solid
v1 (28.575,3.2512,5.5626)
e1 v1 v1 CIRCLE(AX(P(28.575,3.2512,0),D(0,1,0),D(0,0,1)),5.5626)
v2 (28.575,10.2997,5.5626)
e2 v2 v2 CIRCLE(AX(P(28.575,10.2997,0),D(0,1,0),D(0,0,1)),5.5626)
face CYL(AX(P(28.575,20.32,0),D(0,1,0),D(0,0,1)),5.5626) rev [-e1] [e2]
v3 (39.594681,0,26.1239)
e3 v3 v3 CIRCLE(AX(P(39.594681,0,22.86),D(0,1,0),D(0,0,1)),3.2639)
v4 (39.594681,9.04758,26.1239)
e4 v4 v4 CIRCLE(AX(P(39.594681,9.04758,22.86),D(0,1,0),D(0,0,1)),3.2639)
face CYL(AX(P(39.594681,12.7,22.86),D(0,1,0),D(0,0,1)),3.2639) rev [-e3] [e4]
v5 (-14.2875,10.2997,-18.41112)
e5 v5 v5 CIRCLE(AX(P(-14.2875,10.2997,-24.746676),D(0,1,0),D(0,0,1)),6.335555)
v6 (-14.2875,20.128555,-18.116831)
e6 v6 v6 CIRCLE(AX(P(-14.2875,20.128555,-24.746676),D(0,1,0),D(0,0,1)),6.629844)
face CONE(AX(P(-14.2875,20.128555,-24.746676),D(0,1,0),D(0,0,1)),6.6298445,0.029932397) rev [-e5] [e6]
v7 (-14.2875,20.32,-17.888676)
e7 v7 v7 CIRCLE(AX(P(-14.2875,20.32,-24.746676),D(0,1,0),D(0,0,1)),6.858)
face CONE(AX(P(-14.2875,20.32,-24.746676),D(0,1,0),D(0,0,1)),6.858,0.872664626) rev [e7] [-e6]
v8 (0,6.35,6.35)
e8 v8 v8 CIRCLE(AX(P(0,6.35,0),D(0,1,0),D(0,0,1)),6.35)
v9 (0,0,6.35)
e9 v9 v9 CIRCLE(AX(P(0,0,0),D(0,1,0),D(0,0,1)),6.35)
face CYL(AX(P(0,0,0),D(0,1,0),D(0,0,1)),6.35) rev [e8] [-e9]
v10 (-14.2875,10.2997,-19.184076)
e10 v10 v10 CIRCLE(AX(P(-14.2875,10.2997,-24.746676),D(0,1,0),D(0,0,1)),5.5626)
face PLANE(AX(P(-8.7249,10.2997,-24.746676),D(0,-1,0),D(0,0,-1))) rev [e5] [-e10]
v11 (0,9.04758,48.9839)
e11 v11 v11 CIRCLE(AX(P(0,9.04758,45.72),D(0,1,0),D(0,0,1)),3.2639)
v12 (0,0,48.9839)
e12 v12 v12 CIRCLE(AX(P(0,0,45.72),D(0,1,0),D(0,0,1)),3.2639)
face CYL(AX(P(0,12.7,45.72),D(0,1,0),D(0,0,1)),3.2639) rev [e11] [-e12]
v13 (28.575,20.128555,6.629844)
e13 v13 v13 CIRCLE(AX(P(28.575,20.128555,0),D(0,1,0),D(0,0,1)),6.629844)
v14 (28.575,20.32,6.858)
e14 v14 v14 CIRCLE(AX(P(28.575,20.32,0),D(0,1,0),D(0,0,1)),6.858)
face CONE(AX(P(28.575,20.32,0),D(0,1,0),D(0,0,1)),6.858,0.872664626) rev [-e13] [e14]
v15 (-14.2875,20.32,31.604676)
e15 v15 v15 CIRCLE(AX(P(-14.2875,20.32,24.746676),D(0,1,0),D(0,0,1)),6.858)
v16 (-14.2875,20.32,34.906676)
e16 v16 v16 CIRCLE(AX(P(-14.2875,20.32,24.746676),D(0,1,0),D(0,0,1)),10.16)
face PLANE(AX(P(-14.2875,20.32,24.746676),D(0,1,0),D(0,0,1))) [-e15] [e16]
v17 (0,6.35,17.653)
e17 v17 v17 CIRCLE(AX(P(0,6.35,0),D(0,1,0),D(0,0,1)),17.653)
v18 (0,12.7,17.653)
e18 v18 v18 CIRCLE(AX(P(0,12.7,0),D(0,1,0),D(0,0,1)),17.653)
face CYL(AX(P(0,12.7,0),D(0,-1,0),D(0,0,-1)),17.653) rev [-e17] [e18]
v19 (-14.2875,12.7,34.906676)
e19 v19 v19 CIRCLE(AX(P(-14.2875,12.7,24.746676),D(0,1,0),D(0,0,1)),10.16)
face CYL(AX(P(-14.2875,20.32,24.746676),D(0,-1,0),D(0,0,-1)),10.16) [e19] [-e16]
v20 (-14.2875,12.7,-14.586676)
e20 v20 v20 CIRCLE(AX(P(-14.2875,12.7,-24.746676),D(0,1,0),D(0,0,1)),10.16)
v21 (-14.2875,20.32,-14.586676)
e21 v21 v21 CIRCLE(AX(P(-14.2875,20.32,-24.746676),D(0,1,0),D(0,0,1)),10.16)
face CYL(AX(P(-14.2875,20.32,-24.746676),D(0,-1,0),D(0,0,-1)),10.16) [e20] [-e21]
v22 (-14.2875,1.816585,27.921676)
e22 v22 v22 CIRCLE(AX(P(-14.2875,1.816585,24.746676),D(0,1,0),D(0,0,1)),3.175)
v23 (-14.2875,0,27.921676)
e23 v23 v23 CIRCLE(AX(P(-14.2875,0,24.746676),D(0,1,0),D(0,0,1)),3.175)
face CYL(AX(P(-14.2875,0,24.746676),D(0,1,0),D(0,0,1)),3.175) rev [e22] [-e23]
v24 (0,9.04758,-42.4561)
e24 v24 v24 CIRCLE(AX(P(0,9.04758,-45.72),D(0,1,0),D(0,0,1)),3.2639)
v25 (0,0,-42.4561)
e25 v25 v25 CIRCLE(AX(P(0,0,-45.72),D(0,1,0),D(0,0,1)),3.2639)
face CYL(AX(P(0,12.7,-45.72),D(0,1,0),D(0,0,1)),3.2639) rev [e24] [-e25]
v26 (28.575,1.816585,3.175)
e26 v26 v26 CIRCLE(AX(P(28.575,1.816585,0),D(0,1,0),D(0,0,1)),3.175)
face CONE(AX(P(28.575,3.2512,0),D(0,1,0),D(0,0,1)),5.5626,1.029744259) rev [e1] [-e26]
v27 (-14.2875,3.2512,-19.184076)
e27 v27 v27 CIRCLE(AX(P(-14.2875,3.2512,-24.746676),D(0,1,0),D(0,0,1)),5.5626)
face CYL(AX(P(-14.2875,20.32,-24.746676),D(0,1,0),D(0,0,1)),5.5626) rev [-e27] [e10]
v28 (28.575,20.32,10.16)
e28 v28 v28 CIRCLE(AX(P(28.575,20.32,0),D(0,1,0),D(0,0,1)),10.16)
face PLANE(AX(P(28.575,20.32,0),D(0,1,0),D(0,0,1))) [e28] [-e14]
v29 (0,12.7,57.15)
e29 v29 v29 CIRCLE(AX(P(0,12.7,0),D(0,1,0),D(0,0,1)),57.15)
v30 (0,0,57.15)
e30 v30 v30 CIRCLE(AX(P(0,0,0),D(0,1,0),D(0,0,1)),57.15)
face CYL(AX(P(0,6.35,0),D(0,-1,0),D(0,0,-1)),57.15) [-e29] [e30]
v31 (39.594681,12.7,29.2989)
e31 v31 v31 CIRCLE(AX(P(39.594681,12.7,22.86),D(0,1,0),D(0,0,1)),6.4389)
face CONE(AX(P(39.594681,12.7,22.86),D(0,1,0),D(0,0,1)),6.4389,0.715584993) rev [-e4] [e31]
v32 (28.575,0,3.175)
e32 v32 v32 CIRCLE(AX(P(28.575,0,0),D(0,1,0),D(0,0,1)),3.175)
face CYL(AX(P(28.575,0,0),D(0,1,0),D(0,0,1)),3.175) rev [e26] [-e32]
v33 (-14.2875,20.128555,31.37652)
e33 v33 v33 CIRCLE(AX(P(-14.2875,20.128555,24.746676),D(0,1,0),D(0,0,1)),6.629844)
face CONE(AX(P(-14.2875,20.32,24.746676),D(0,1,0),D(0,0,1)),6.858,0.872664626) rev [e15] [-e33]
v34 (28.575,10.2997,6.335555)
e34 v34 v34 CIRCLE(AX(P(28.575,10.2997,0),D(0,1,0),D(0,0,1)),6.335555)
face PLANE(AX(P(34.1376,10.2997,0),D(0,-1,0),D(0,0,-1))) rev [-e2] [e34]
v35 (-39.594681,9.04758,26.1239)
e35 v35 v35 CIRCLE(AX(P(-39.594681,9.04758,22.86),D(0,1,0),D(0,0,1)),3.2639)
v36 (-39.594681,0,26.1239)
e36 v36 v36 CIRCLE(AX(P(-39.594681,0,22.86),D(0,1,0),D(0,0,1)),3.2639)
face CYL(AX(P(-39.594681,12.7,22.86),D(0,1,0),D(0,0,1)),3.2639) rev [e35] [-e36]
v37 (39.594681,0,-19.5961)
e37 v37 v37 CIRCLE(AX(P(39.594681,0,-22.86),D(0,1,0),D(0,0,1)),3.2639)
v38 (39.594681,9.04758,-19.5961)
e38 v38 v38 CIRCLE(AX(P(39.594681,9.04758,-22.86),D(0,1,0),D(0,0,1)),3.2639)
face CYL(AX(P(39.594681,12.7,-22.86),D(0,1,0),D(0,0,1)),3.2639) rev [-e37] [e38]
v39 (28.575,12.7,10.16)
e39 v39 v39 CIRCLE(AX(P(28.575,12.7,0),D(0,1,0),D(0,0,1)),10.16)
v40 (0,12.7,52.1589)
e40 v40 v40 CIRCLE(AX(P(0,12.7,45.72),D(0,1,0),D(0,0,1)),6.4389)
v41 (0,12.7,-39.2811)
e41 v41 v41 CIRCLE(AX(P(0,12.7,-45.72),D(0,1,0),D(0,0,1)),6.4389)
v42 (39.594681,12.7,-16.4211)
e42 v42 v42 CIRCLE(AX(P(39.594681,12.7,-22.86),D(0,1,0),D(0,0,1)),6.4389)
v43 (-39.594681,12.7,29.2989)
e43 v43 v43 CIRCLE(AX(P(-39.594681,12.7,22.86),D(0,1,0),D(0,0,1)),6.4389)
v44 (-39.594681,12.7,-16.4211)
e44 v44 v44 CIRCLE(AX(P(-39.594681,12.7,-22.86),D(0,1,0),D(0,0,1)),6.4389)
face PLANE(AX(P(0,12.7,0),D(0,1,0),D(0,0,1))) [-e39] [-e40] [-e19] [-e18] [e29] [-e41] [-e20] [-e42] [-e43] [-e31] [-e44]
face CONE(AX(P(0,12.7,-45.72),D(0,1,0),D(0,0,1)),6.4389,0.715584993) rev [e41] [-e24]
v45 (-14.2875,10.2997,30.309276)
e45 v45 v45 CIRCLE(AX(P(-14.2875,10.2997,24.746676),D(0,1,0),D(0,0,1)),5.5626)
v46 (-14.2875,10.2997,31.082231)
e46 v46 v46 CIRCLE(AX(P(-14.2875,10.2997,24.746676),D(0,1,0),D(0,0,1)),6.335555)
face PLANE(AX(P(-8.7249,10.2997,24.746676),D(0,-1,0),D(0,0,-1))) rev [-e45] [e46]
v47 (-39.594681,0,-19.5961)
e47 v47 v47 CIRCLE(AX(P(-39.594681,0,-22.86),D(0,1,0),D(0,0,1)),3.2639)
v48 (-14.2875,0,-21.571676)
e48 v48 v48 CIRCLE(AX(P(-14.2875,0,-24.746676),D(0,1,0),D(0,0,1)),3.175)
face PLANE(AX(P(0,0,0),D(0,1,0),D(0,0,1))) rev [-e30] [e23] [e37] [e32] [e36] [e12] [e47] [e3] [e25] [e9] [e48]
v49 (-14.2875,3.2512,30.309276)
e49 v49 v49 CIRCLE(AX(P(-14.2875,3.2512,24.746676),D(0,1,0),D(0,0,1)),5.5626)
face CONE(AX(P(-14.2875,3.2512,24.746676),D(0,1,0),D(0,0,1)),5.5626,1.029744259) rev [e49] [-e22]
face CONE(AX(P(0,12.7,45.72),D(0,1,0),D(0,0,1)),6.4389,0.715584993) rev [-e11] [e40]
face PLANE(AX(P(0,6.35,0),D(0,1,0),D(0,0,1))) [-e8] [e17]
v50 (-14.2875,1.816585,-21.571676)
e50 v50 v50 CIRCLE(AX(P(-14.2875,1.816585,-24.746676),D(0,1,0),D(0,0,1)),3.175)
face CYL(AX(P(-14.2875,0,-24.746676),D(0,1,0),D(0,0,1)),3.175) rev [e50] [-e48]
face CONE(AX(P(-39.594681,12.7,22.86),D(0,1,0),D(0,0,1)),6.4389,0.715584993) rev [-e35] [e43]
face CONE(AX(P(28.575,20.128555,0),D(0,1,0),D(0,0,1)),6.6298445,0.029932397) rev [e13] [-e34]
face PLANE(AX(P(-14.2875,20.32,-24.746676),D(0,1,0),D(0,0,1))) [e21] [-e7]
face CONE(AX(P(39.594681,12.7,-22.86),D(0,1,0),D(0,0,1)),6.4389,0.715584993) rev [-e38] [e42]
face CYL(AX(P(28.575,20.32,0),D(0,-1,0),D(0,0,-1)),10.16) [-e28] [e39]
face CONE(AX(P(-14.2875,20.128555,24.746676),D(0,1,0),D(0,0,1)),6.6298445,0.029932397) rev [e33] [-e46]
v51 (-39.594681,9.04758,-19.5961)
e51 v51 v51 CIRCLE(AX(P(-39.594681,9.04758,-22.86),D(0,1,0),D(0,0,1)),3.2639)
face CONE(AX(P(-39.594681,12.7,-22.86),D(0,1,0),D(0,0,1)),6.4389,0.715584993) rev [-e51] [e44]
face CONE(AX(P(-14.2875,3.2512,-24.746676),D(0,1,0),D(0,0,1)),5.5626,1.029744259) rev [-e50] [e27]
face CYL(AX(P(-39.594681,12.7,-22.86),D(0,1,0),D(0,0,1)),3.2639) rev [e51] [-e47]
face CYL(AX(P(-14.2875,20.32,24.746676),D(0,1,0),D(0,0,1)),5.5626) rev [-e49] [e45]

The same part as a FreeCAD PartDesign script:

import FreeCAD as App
import Part
import Sketcher
from FreeCAD import Vector
Q = App.Units.Quantity


def add_polygon(sketch, points):
    """Adds a closed chain of lines whose ends are joined by coincident constraints."""
    first, n = sketch.GeometryCount, len(points)
    for a, b in zip(points, points[1:] + points[:1]):
        sketch.addGeometry(Part.LineSegment(App.Vector(*a, 0), App.Vector(*b, 0)), False)
    for i in range(n):
        sketch.addConstraint(Sketcher.Constraint("Coincident", first + i, 2, first + (i + 1) % n, 1))

doc = App.newDocument("Part")
body = doc.addObject("PartDesign::Body", "Body")

# Sketch on XZ plane
sketch1 = doc.addObject("Sketcher::SketchObject", "Sketch")
body.addObject(sketch1)
sketch1.AttachmentSupport = (doc.XZ_Plane, [""])
sketch1.MapMode = "FlatFace"
sketch1.addGeometry(Part.Circle(Vector(0, 0, 0), Vector(0, 0, 1), 57), False)
sketch1.addConstraint(Sketcher.Constraint("Coincident", 0, 3, -1, 1))
sketch1.addConstraint(Sketcher.Constraint("Diameter", 0, Q("4.5 in")))
pad1 = doc.addObject("PartDesign::Pad", "Pad")
body.addObject(pad1)
pad1.Profile = sketch1
pad1.Length = Q("0.25 in")
pad1.Reversed = True

# Sketch on XZ plane
sketch2 = doc.addObject("Sketcher::SketchObject", "Sketch001")
body.addObject(sketch2)
sketch2.AttachmentSupport = (doc.XZ_Plane, [""])
sketch2.MapMode = "FlatFace"
sketch2.AttachmentOffset = App.Placement(Vector(0, 0, -0.25 * 25.4), App.Rotation())
sketch2.addGeometry(Part.Circle(Vector(0, 0, 0), Vector(0, 0, 1), 6), False)
sketch2.addConstraint(Sketcher.Constraint("Coincident", 0, 3, -1, 1))
sketch2.addConstraint(Sketcher.Constraint("Diameter", 0, Q("0.5 in")))
pocket1 = doc.addObject("PartDesign::Pocket", "Pocket")
body.addObject(pocket1)
pocket1.Profile = sketch2
pocket1.Type = "ThroughAll"
pocket1.Midplane = True

# Sketch on XZ plane
sketch3 = doc.addObject("Sketcher::SketchObject", "Sketch002")
body.addObject(sketch3)
sketch3.AttachmentSupport = (doc.XZ_Plane, [""])
sketch3.MapMode = "FlatFace"
sketch3.AttachmentOffset = App.Placement(Vector(0, 0, -0.25 * 25.4), App.Rotation())
sketch3.addGeometry(Part.Circle(Vector(0, 0, 0), Vector(0, 0, 1), 57), False)
sketch3.addGeometry(Part.Circle(Vector(0, 0, 0), Vector(0, 0, 1), 18), False)
sketch3.addConstraint(Sketcher.Constraint("Coincident", 0, 3, -1, 1))
sketch3.addConstraint(Sketcher.Constraint("Coincident", 1, 3, -1, 1))
sketch3.addConstraint(Sketcher.Constraint("Diameter", 0, Q("4.5 in")))
sketch3.addConstraint(Sketcher.Constraint("Diameter", 1, Q("1.39 in")))
pad2 = doc.addObject("PartDesign::Pad", "Pad001")
body.addObject(pad2)
pad2.Profile = sketch3
pad2.Length = Q("0.25 in")
pad2.Reversed = True

# Sketch on XZ plane
sketch4 = doc.addObject("Sketcher::SketchObject", "Sketch003")
body.addObject(sketch4)
sketch4.AttachmentSupport = (doc.XZ_Plane, [""])
sketch4.MapMode = "FlatFace"
sketch4.AttachmentOffset = App.Placement(Vector(0, 0, -0.5 * 25.4), App.Rotation())
sketch4.addGeometry(Part.Circle(Vector(28.6, 0, 0), Vector(0, 0, 1), 3.2), False)
sketch4.addGeometry(Part.Circle(Vector(-14.3, 24.7, 0), Vector(0, 0, 1), 3.2), False)
sketch4.addGeometry(Part.Circle(Vector(-14.3, -24.7, 0), Vector(0, 0, 1), 3.2), False)
sketch4.addConstraint(Sketcher.Constraint("Equal", 0, 1))
sketch4.addConstraint(Sketcher.Constraint("Equal", 1, 2))
sketch4.addConstraint(Sketcher.Constraint("Symmetric", 1, 3, 2, 3, -1))
sketch4.addConstraint(Sketcher.Constraint("PointOnObject", 0, 3, -1))
sketch4.addConstraint(Sketcher.Constraint("Diameter", 0, Q("0.25 in")))
sketch4.addConstraint(Sketcher.Constraint("DistanceX", -1, 1, 0, 3, Q("1.125 in")))
sketch4.addConstraint(Sketcher.Constraint("DistanceX", 1, 3, -1, 1, Q("0.5625 in")))
sketch4.addConstraint(Sketcher.Constraint("DistanceY", 2, 3, 1, 3, 49.493352))
pocket2 = doc.addObject("PartDesign::Pocket", "Pocket001")
body.addObject(pocket2)
pocket2.Profile = sketch4
pocket2.Type = "ThroughAll"
pocket2.Midplane = True

# Sketch on XZ plane
sketch5 = doc.addObject("Sketcher::SketchObject", "Sketch004")
body.addObject(sketch5)
sketch5.AttachmentSupport = (doc.XZ_Plane, [""])
sketch5.MapMode = "FlatFace"
sketch5.AttachmentOffset = App.Placement(Vector(0, 0, -0.5 * 25.4), App.Rotation())
sketch5.addGeometry(Part.Circle(Vector(0, -45.7, 0), Vector(0, 0, 1), 3.3), False)
sketch5.addConstraint(Sketcher.Constraint("PointOnObject", 0, 3, -2))
sketch5.addConstraint(Sketcher.Constraint("Diameter", 0, Q("0.257 in")))
sketch5.addConstraint(Sketcher.Constraint("DistanceY", 0, 3, -1, 1, Q("1.8 in")))
doc.recompute()
hole = doc.addObject("PartDesign::Hole", "Hole")
body.addObject(hole)
hole.Profile = sketch5
hole.ThreadType = "None"
hole.Diameter = Q("0.257 in")
hole.DepthType = "ThroughAll"
hole.HoleCutType = "Countersink"
hole.HoleCutDiameter = Q("0.507 in")
hole.HoleCutCountersinkAngle = 82
hole.Reversed = True
doc.recompute()

polarpattern = doc.addObject("PartDesign::PolarPattern", "PolarPattern")
body.addObject(polarpattern)
polarpattern.Originals = [hole]
polarpattern.Axis = (doc.Y_Axis, [""])
polarpattern.Angle = 360
polarpattern.Occurrences = 6
body.Tip = polarpattern

# Sketch on XZ plane
sketch6 = doc.addObject("Sketcher::SketchObject", "Sketch005")
body.addObject(sketch6)
sketch6.AttachmentSupport = (doc.XZ_Plane, [""])
sketch6.MapMode = "FlatFace"
sketch6.AttachmentOffset = App.Placement(Vector(0, 0, -0.5 * 25.4), App.Rotation())
sketch6.addGeometry(Part.Circle(Vector(-14.3, -24.7, 0), Vector(0, 0, 1), 10.2), False)
sketch6.addGeometry(Part.Circle(Vector(-14.3, -24.7, 0), Vector(0, 0, 1), 3.2), False)
sketch6.addGeometry(Part.Circle(Vector(28.6, 0, 0), Vector(0, 0, 1), 10.2), False)
sketch6.addGeometry(Part.Circle(Vector(28.6, 0, 0), Vector(0, 0, 1), 3.2), False)
sketch6.addGeometry(Part.Circle(Vector(-14.3, 24.7, 0), Vector(0, 0, 1), 10.2), False)
sketch6.addGeometry(Part.Circle(Vector(-14.3, 24.7, 0), Vector(0, 0, 1), 3.2), False)
sketch6.addConstraint(Sketcher.Constraint("Coincident", 1, 3, 0, 3))
sketch6.addConstraint(Sketcher.Constraint("Coincident", 3, 3, 2, 3))
sketch6.addConstraint(Sketcher.Constraint("Coincident", 5, 3, 4, 3))
sketch6.addConstraint(Sketcher.Constraint("Equal", 0, 2))
sketch6.addConstraint(Sketcher.Constraint("Equal", 1, 3))
sketch6.addConstraint(Sketcher.Constraint("Equal", 2, 4))
sketch6.addConstraint(Sketcher.Constraint("Equal", 3, 5))
sketch6.addConstraint(Sketcher.Constraint("Symmetric", 0, 3, 4, 3, -1))
sketch6.addConstraint(Sketcher.Constraint("PointOnObject", 2, 3, -1))
sketch6.addConstraint(Sketcher.Constraint("Diameter", 0, Q("0.8 in")))
sketch6.addConstraint(Sketcher.Constraint("Diameter", 1, Q("0.25 in")))
sketch6.addConstraint(Sketcher.Constraint("DistanceX", 0, 3, -1, 1, Q("0.5625 in")))
sketch6.addConstraint(Sketcher.Constraint("DistanceX", -1, 1, 2, 3, Q("1.125 in")))
sketch6.addConstraint(Sketcher.Constraint("DistanceY", 0, 3, 4, 3, 49.493352))
pad3 = doc.addObject("PartDesign::Pad", "Pad002")
body.addObject(pad3)
pad3.Profile = sketch6
pad3.Length = Q("0.3 in")
pad3.Reversed = True

# Sketch on YZ plane
sketch7 = doc.addObject("Sketcher::SketchObject", "Sketch006")
body.addObject(sketch7)
sketch7.AttachmentSupport = (doc.YZ_Plane, [""])
sketch7.MapMode = "FlatFace"
sketch7.AttachmentOffset = App.Placement(Vector(0, 0, -0.5625 * 25.4), App.Rotation())
add_polygon(sketch7, [(-0.09, -24.75), (20.32, -24.75), (20.32, -17.89), (20.13, -18.12), (10.3, -18.41), (10.3, -19.18), (3.25, -19.18)])  # lines 0-6
sketch7.addGeometry(Part.LineSegment(Vector(20.32, -24.75, 0), Vector(-0.09, -24.75, 0)), True)  # axis
sketch7.addConstraint(Sketcher.Constraint("Horizontal", 0))
sketch7.addConstraint(Sketcher.Constraint("Vertical", 1))
sketch7.addConstraint(Sketcher.Constraint("Vertical", 4))
sketch7.addConstraint(Sketcher.Constraint("Horizontal", 5))
sketch7.addConstraint(Sketcher.Constraint("Horizontal", 7))
sketch7.addConstraint(Sketcher.Constraint("Coincident", 7, 1, 0, 2))
sketch7.addConstraint(Sketcher.Constraint("Equal", 0, 7))
sketch7.addConstraint(Sketcher.Constraint("Angle", 2, Q("-130 deg")))
sketch7.addConstraint(Sketcher.Constraint("Angle", 6, Q("-121 deg")))
sketch7.addConstraint(Sketcher.Constraint("DistanceY", 1, 1, 1, 2, Q("0.27 in")))
sketch7.addConstraint(Sketcher.Constraint("DistanceX", -1, 1, 0, 2, Q("0.8 in")))
sketch7.addConstraint(Sketcher.Constraint("DistanceX", 5, 2, 5, 1, Q("0.2775 in")))
sketch7.addConstraint(Sketcher.Constraint("DistanceX", -1, 1, 5, 2, Q("0.128 in")))
sketch7.addConstraint(Sketcher.Constraint("DistanceY", 4, 2, 1, 2, Q("0.051 in")))
sketch7.addConstraint(Sketcher.Constraint("Distance", 3, 9.83326))
sketch7.addConstraint(Sketcher.Constraint("DistanceY", 4, 2, 4, 1, 0.772955))
sketch7.addConstraint(Sketcher.Constraint("DistanceY", 2, 2, -1, 1, 18.116831))
groove = doc.addObject("PartDesign::Groove", "Groove")
body.addObject(groove)
groove.Profile = sketch7
groove.ReferenceAxis = (sketch7, ["Axis0"])
groove.Angle = 360
doc.recompute()

datumline = doc.addObject("PartDesign::Line", "DatumLine")
body.addObject(datumline)
datumline.Placement = App.Placement(Vector(0, 0, 0), App.Rotation(Vector(0, 0, 1), Vector(0.866025404, 0, 0.5)))
linearpattern = doc.addObject("PartDesign::LinearPattern", "LinearPattern")
body.addObject(linearpattern)
linearpattern.Originals = [groove]
linearpattern.Direction = (datumline, [""])
linearpattern.Mode = "offset"
linearpattern.Offset = 49.493352
linearpattern.Occurrences = 2
body.Tip = linearpattern
doc.recompute()

linearpattern2 = doc.addObject("PartDesign::LinearPattern", "LinearPattern001")
body.addObject(linearpattern2)
linearpattern2.Originals = [groove]
linearpattern2.Direction = (doc.Z_Axis, [""])
linearpattern2.Mode = "offset"
linearpattern2.Offset = 49.493352
linearpattern2.Occurrences = 2
body.Tip = linearpattern2

doc.recompute()
